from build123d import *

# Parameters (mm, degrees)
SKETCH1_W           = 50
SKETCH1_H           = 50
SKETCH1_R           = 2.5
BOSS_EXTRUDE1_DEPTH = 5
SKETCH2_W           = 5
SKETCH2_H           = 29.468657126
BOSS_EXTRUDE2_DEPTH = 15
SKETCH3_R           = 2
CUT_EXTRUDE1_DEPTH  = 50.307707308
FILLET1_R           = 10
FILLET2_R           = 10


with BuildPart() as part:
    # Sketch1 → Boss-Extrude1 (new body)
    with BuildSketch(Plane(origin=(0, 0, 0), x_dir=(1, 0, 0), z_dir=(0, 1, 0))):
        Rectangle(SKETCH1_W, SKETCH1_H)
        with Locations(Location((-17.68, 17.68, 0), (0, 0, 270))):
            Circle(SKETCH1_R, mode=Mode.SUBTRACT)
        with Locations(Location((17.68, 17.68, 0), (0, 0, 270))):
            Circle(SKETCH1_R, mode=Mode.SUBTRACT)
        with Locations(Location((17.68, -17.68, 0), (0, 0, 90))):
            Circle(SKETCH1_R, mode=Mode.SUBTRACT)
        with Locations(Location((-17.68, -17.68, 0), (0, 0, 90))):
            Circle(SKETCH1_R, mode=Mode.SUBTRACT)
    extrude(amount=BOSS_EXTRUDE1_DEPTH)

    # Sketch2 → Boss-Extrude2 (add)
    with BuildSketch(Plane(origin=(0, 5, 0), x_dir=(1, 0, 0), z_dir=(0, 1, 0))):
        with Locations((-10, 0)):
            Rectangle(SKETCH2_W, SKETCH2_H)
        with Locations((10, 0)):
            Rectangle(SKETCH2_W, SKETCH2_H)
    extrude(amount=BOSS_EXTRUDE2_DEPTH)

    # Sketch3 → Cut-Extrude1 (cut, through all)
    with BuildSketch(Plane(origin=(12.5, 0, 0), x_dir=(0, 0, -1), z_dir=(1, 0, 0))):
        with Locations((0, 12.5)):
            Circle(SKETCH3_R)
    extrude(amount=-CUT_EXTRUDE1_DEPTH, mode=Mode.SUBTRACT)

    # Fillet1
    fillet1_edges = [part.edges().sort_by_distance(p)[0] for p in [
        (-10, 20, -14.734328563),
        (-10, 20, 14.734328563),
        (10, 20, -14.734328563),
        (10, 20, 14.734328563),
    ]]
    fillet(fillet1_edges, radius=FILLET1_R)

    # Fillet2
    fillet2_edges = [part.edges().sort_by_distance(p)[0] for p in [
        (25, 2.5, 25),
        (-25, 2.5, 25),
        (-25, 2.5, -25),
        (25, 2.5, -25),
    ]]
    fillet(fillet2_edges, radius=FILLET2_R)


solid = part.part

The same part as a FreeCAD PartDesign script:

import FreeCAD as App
import Part
import Sketcher
Q = App.Units.Quantity


def edges_at(feature, points):
    """Names of the edges that pass closest to the given points."""
    edges = feature.Shape.Edges
    near = lambda p: min(range(len(edges)), key=lambda i: edges[i].distToShape(Part.Vertex(*p))[0])
    return sorted({f"Edge{near(p) + 1}" for p in points})

doc = App.newDocument("Part")
body = doc.addObject("PartDesign::Body", "Body")

sketch1 = body.newObject("Sketcher::SketchObject", "Sketch")
sketch1.AttachmentSupport = (doc.getObject("XZ_Plane"), [""])
sketch1.MapMode = "FlatFace"
sketch1.addGeometry([
    Part.LineSegment(App.Vector(-25, -25, 0), App.Vector(-25, 25, 0)),
    Part.LineSegment(App.Vector(-25, 25, 0), App.Vector(25, 25, 0)),
    Part.LineSegment(App.Vector(25, 25, 0), App.Vector(25, -25, 0)),
    Part.LineSegment(App.Vector(25, -25, 0), App.Vector(-25, -25, 0)),
    Part.Circle(App.Vector(-17.7, 17.7, 0), App.Vector(0, 0, 1), 2.5),
    Part.Circle(App.Vector(17.7, 17.7, 0), App.Vector(0, 0, 1), 2.5),
    Part.Circle(App.Vector(-17.7, -17.7, 0), App.Vector(0, 0, 1), 2.5),
    Part.Circle(App.Vector(17.7, -17.7, 0), App.Vector(0, 0, 1), 2.5),
], False)
sketch1.addConstraint([
    Sketcher.Constraint("Coincident", 0, 2, 1, 1),
    Sketcher.Constraint("Coincident", 1, 2, 2, 1),
    Sketcher.Constraint("Coincident", 2, 2, 3, 1),
    Sketcher.Constraint("Coincident", 3, 2, 0, 1),
    Sketcher.Constraint("Vertical", 0),
    Sketcher.Constraint("Horizontal", 1),
    Sketcher.Constraint("Vertical", 2),
    Sketcher.Constraint("Horizontal", 3),
    Sketcher.Constraint("Equal", 4, 5),
    Sketcher.Constraint("Equal", 5, 6),
    Sketcher.Constraint("Equal", 6, 7),
    Sketcher.Constraint("Symmetric", 5, 3, 6, 3, -1, 1),
    Sketcher.Constraint("Symmetric", 4, 3, 7, 3, -1, 1),
    Sketcher.Constraint("Symmetric", 0, 2, 2, 2, -1, 1),
    Sketcher.Constraint("Symmetric", 4, 3, 5, 3, -2),
    Sketcher.Constraint("Equal", 3, 0),
    Sketcher.Constraint("Diameter", 4, Q("5 mm")),
    Sketcher.Constraint("DistanceX", 1, 1, 1, 2, Q("50 mm")),
    Sketcher.Constraint("DistanceX", 4, 3, -1, 1, Q("17.68 mm")),
    Sketcher.Constraint("DistanceY", -1, 1, 4, 3, Q("17.68 mm")),
])
pad1 = body.newObject("PartDesign::Pad", "Pad")
pad1.Profile = sketch1
pad1.Length = 5
pad1.Reversed = True

sketch2 = body.newObject("Sketcher::SketchObject", "Sketch001")
sketch2.AttachmentSupport = (doc.getObject("XZ_Plane"), [""])
sketch2.MapMode = "FlatFace"
sketch2.AttachmentOffset = App.Placement(App.Vector(0, 0, -5), App.Rotation())
sketch2.addGeometry([
    Part.LineSegment(App.Vector(-12, -15, 0), App.Vector(-12, 15, 0)),
    Part.LineSegment(App.Vector(-12, 15, 0), App.Vector(-8, 15, 0)),
    Part.LineSegment(App.Vector(-8, 15, 0), App.Vector(-8, -15, 0)),
    Part.LineSegment(App.Vector(-8, -15, 0), App.Vector(-12, -15, 0)),
    Part.LineSegment(App.Vector(8, -15, 0), App.Vector(8, 15, 0)),
    Part.LineSegment(App.Vector(8, 15, 0), App.Vector(12, 15, 0)),
    Part.LineSegment(App.Vector(12, 15, 0), App.Vector(12, -15, 0)),
    Part.LineSegment(App.Vector(12, -15, 0), App.Vector(8, -15, 0)),
], False)
sketch2.addConstraint([
    Sketcher.Constraint("Coincident", 0, 2, 1, 1),
    Sketcher.Constraint("Coincident", 1, 2, 2, 1),
    Sketcher.Constraint("Coincident", 2, 2, 3, 1),
    Sketcher.Constraint("Coincident", 3, 2, 0, 1),
    Sketcher.Constraint("Coincident", 4, 2, 5, 1),
    Sketcher.Constraint("Coincident", 5, 2, 6, 1),
    Sketcher.Constraint("Coincident", 6, 2, 7, 1),
    Sketcher.Constraint("Coincident", 7, 2, 4, 1),
    Sketcher.Constraint("Vertical", 0),
    Sketcher.Constraint("Horizontal", 1),
    Sketcher.Constraint("Vertical", 2),
    Sketcher.Constraint("Horizontal", 3),
    Sketcher.Constraint("Vertical", 4),
    Sketcher.Constraint("Horizontal", 5),
    Sketcher.Constraint("Vertical", 6),
    Sketcher.Constraint("Horizontal", 7),
    Sketcher.Constraint("Symmetric", 2, 2, 4, 2, -1, 1),
    Sketcher.Constraint("Symmetric", 0, 2, 6, 2, -1, 1),
    Sketcher.Constraint("Horizontal", 1, 2, 4, 2),
    Sketcher.Constraint("DistanceX", 1, 1, 1, 2, Q("5 mm")),
    Sketcher.Constraint("DistanceX", 1, 2, 4, 2, Q("15 mm")),
    Sketcher.Constraint("DistanceY", 0, 1, 0, 2, Q("29.468657 mm")),
])
pad2 = body.newObject("PartDesign::Pad", "Pad001")
pad2.Profile = sketch2
pad2.Length = 15
pad2.Reversed = True

sketch3 = body.newObject("Sketcher::SketchObject", "Sketch002")
sketch3.AttachmentSupport = (doc.getObject("YZ_Plane"), [""])
sketch3.MapMode = "FlatFace"
sketch3.AttachmentOffset = App.Placement(App.Vector(0, 0, 12.5), App.Rotation())
sketch3.addGeometry(Part.Circle(App.Vector(12.5, 0, 0), App.Vector(0, 0, 1), 2), False)
sketch3.addConstraint([
    Sketcher.Constraint("PointOnObject", 0, 3, -1),
    Sketcher.Constraint("Diameter", 0, Q("4 mm")),
    Sketcher.Constraint("DistanceX", -1, 1, 0, 3, Q("12.5 mm")),
])
pocket1 = body.newObject("PartDesign::Pocket", "Pocket")
pocket1.Profile = sketch3
pocket1.Type = "ThroughAll"
doc.recompute()

fillet = body.newObject("PartDesign::Fillet", "Fillet")
fillet.Base = (pocket1, edges_at(pocket1, [
    (-10, 20, -14.734),
    (-10, 20, 14.734),
    (10, 20, -14.734),
    (10, 20, 14.734),
]))
fillet.Radius = 10
doc.recompute()

fillet2 = body.newObject("PartDesign::Fillet", "Fillet001")
fillet2.Base = (fillet, edges_at(fillet, [
    (25, 2.5, 25),
    (-25, 2.5, 25),
    (-25, 2.5, -25),
    (25, 2.5, -25),
]))
fillet2.Radius = 10

doc.recompute()
